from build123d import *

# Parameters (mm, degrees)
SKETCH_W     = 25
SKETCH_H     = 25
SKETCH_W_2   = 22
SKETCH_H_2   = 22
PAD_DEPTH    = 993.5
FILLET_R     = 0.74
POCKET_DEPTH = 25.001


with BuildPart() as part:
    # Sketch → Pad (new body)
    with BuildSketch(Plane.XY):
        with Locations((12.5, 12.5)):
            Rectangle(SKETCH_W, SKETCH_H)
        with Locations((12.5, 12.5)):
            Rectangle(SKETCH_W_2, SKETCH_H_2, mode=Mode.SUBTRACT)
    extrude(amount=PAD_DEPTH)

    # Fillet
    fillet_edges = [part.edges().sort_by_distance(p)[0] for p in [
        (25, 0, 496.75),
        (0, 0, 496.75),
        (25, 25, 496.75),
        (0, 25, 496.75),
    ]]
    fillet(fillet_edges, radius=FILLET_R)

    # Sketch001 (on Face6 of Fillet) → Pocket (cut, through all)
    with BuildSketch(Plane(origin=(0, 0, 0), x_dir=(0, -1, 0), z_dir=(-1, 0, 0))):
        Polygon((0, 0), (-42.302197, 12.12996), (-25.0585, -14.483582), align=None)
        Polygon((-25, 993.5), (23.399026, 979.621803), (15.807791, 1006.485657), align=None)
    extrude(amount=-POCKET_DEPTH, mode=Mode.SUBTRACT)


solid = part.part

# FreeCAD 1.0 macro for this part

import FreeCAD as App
import Part
import Sketcher
Q = App.Units.Quantity


def edges_at(feature, points):
    """Names of the edges that pass closest to the given points."""
    edges = feature.Shape.Edges
    near = lambda p: min(range(len(edges)), key=lambda i: edges[i].distToShape(Part.Vertex(*p))[0])
    return sorted({f"Edge{near(p) + 1}" for p in points})


def add_polygon(sketch, points):
    """Adds a closed chain of lines whose ends are joined by coincident constraints."""
    first, n = sketch.GeometryCount, len(points)
    for a, b in zip(points, points[1:] + points[:1]):
        sketch.addGeometry(Part.LineSegment(App.Vector(*a, 0), App.Vector(*b, 0)), False)
    for i in range(n):
        sketch.addConstraint(Sketcher.Constraint("Coincident", first + i, 2, first + (i + 1) % n, 1))

doc = App.newDocument("Part")
body = doc.addObject("PartDesign::Body", "Body")

# Sketch on XY plane
sketch1 = body.newObject("Sketcher::SketchObject", "Sketch")
sketch1.AttachmentSupport = (doc.getObject("XY_Plane"), [""])
sketch1.MapMode = "FlatFace"
add_polygon(sketch1, [(0, 25), (0, 0), (25, 0), (25, 25)])  # lines 0-3
add_polygon(sketch1, [(24, 2), (2, 2), (2, 24), (24, 24)])  # lines 4-7
sketch1.addConstraint([
    Sketcher.Constraint("Vertical", 0),
    Sketcher.Constraint("Horizontal", 1),
    Sketcher.Constraint("Vertical", 2),
    Sketcher.Constraint("Horizontal", 3),
    Sketcher.Constraint("Horizontal", 4),
    Sketcher.Constraint("Vertical", 5),
    Sketcher.Constraint("Horizontal", 6),
    Sketcher.Constraint("Vertical", 7),
    Sketcher.Constraint("Coincident", 0, 2, -1, 1),
    Sketcher.Constraint("Equal", 3, 0),
    Sketcher.Constraint("Equal", 6, 5),
    Sketcher.Constraint("DistanceX", 1, 1, 1, 2, 25.0),
    Sketcher.Constraint("DistanceX", 4, 2, 4, 1, 22.0),
    Sketcher.Constraint("DistanceX", -1, 1, 4, 2, 1.5),
    Sketcher.Constraint("DistanceY", -1, 1, 4, 2, 1.5),
])
pad1 = body.newObject("PartDesign::Pad", "Pad")
pad1.Profile = sketch1
pad1.Length = 993.5
doc.recompute()

fillet = body.newObject("PartDesign::Fillet", "Fillet")
fillet.Base = (pad1, edges_at(pad1, [
    (25, 0, 496.75),
    (0, 0, 496.75),
    (25, 25, 496.75),
    (0, 25, 496.75),
]))
fillet.Radius = 0.74

# Sketch on YZ plane
sketch2 = body.newObject("Sketcher::SketchObject", "Sketch001")
sketch2.AttachmentSupport = (doc.getObject("YZ_Plane"), [""])
sketch2.MapMode = "FlatFace"
add_polygon(sketch2, [(0, 0), (42, 12), (25, -14)])  # lines 0-2
add_polygon(sketch2, [(25, 994), (-23, 980), (-16, 1006)])  # lines 3-5
sketch2.addConstraint([
    Sketcher.Constraint("Coincident", 2, 2, -1, 1),
    Sketcher.Constraint("Parallel", 0, 3),
    Sketcher.Constraint("Angle", 0, Q("16 deg")),
    Sketcher.Constraint("DistanceX", -1, 1, 5, 2, 25.0),
    Sketcher.Constraint("DistanceY", -1, 1, 5, 2, 993.5),
    Sketcher.Constraint("DistanceX", -1, 1, 1, 2, 25.0585),
    Sketcher.Constraint("Distance", 0, 44.006952),
    Sketcher.Constraint("Distance", 2, 28.943092),
    Sketcher.Constraint("Distance", 3, 50.349479),
    Sketcher.Constraint("Distance", 4, 27.915829),
    Sketcher.Constraint("DistanceX", 4, 2, -1, 1, 15.807791),
])
pocket1 = body.newObject("PartDesign::Pocket", "Pocket")
pocket1.Profile = sketch2
pocket1.Type = "ThroughAll"
pocket1.Reversed = True

doc.recompute()
